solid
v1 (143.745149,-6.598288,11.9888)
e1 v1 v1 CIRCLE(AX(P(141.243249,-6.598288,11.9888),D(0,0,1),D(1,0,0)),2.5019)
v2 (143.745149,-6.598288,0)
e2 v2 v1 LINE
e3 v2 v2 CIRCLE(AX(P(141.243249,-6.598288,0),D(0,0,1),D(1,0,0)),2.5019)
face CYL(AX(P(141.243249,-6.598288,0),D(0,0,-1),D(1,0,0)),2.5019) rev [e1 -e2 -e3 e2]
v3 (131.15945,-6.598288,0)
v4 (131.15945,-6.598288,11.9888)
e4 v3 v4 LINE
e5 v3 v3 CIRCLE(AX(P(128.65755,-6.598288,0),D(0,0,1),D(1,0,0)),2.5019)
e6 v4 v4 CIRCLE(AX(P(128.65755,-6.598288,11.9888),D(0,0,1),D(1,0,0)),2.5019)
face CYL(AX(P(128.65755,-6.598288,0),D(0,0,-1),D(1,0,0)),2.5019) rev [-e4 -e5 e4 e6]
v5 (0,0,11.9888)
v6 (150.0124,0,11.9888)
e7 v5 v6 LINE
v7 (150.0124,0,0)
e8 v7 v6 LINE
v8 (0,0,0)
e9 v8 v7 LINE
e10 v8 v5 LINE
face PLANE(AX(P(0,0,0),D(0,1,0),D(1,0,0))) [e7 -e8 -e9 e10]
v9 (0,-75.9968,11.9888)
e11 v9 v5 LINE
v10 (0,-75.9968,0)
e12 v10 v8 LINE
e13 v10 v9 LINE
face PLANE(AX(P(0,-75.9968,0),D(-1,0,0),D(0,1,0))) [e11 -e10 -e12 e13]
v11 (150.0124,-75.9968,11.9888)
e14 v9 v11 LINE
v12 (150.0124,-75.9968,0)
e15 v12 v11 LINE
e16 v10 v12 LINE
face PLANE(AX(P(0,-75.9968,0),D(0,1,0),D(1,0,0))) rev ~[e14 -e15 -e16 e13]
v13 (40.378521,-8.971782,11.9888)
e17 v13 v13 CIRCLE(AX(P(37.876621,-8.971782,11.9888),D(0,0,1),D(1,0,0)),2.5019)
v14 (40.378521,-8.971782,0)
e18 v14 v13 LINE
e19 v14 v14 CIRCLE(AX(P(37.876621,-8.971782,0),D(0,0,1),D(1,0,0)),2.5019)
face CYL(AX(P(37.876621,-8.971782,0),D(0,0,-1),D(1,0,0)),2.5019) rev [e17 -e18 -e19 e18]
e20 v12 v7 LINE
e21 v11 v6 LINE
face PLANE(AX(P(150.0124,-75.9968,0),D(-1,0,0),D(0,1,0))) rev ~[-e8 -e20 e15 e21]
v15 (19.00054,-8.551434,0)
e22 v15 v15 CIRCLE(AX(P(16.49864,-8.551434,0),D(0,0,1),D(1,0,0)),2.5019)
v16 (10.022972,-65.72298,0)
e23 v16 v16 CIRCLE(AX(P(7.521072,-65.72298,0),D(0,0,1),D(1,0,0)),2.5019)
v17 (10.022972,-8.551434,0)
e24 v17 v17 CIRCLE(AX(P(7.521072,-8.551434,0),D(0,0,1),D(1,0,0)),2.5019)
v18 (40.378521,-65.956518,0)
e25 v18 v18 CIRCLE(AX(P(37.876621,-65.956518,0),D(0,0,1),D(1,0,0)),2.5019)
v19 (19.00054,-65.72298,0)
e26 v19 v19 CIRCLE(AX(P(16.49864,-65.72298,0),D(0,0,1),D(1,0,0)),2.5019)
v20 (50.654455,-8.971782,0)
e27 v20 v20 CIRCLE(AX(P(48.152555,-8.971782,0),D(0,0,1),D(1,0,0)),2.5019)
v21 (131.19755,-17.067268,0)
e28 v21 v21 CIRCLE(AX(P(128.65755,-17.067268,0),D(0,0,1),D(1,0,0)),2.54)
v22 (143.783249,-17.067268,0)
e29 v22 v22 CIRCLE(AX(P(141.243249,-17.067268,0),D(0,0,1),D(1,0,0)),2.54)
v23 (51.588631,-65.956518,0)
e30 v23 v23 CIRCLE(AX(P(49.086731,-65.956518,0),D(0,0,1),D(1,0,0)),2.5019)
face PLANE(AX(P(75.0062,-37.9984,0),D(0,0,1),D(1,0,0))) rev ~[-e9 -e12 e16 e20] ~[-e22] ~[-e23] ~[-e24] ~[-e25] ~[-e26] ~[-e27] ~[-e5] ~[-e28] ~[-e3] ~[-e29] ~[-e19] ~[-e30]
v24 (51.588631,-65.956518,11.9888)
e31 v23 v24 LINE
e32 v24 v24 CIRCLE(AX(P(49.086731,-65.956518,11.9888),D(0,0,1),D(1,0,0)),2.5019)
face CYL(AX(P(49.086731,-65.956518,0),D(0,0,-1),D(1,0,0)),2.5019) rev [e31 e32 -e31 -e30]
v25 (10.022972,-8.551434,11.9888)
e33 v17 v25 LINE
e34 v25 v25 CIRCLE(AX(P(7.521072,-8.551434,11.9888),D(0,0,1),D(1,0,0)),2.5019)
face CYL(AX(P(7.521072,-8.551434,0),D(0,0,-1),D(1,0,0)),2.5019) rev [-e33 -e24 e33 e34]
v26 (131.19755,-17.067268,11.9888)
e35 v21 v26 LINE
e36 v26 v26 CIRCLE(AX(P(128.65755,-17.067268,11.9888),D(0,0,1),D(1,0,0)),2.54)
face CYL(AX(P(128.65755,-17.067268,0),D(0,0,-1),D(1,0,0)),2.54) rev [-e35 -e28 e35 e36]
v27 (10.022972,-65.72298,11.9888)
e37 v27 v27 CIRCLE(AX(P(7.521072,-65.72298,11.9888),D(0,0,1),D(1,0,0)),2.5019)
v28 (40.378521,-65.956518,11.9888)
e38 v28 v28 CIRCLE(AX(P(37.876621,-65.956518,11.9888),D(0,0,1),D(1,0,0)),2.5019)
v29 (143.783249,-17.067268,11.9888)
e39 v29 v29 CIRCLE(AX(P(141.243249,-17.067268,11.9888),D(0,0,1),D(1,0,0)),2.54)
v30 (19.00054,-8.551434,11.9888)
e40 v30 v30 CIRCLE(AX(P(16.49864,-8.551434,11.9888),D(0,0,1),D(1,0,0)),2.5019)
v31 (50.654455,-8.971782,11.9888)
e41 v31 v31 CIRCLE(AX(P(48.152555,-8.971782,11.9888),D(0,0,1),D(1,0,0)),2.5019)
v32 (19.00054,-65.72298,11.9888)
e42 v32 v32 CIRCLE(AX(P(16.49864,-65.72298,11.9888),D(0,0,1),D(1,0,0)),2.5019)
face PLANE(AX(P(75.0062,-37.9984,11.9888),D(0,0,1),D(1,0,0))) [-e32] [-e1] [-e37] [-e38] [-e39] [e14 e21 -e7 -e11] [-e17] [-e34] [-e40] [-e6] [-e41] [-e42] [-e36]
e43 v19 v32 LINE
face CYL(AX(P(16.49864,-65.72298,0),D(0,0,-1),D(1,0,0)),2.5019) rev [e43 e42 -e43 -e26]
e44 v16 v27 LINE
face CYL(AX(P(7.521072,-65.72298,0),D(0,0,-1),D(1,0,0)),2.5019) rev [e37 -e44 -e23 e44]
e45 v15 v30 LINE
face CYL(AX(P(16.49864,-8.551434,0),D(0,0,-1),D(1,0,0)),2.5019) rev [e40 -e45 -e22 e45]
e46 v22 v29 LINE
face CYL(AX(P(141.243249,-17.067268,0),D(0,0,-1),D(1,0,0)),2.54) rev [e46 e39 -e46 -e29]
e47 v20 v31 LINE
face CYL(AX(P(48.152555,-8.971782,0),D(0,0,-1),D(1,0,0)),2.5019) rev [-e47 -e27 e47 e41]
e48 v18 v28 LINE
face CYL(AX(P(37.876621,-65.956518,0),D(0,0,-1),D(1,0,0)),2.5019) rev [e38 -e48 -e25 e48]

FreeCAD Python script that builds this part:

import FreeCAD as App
import Part
import Sketcher

V = App.Vector
Q = App.Units.Quantity

doc = App.newDocument("Part")
params = doc.addObject("Spreadsheet::Sheet", "Params")
for row, (alias, value) in enumerate([
    ("sketch1_diameter", "0.2 in"),
    ("sketch1_diameter2", "0.197 in"),
    ("sketch1_width", "5.906 in"),
    ("sketch1_height", "2.992 in"),
    ("pad1_length", "0.472 in"),
], start=1):
    params.set(f"A{row}", alias)
    params.set(f"B{row}", "=" + value)
    params.setAlias(f"B{row}", alias)

body = doc.addObject("PartDesign::Body", "Body")

sketch1 = body.newObject("Sketcher::SketchObject", "Sketch")
sketch1.AttachmentSupport = (doc.getObject("XY_Plane"), [""])
sketch1.MapMode = "FlatFace"
sketch1.addGeometry([
    Part.LineSegment(V(0, 0, 0), V(0, -75.9968, 0)),
    Part.LineSegment(V(0, -75.9968, 0), V(150.0124, -75.9968, 0)),
    Part.LineSegment(V(150.0124, -75.9968, 0), V(150.0124, 0, 0)),
    Part.LineSegment(V(150.0124, 0, 0), V(0, 0, 0)),
    Part.Circle(V(7.521072, -65.72298, 0), V(0, 0, 1), 2.5019),
    Part.Circle(V(16.49864, -65.72298, 0), V(0, 0, 1), 2.5019),
    Part.Circle(V(37.876621, -65.956518, 0), V(0, 0, 1), 2.5019),
    Part.Circle(V(49.086731, -65.956518, 0), V(0, 0, 1), 2.5019),
    Part.Circle(V(7.521072, -8.551434, 0), V(0, 0, 1), 2.5019),
    Part.Circle(V(16.49864, -8.551434, 0), V(0, 0, 1), 2.5019),
    Part.Circle(V(37.876621, -8.971782, 0), V(0, 0, 1), 2.5019),
    Part.Circle(V(48.152555, -8.971782, 0), V(0, 0, 1), 2.5019),
    Part.Circle(V(128.65755, -17.067268, 0), V(0, 0, 1), 2.54),
    Part.Circle(V(141.243249, -17.067268, 0), V(0, 0, 1), 2.54),
    Part.Circle(V(128.65755, -6.598288, 0), V(0, 0, 1), 2.5019),
    Part.Circle(V(141.243249, -6.598288, 0), V(0, 0, 1), 2.5019),
], False)
sketch1.addConstraint([
    Sketcher.Constraint("Coincident", 0, 2, 1, 1),
    Sketcher.Constraint("Coincident", 1, 2, 2, 1),
    Sketcher.Constraint("Coincident", 2, 2, 3, 1),
    Sketcher.Constraint("Coincident", 3, 2, 0, 1),
    Sketcher.Constraint("Vertical", 0),
    Sketcher.Constraint("Horizontal", 1),
    Sketcher.Constraint("Vertical", 2),
    Sketcher.Constraint("Horizontal", 3),
    Sketcher.Constraint("Coincident", 3, 2, -1, 1),
    Sketcher.Constraint("Equal", 4, 5),
    Sketcher.Constraint("Equal", 5, 6),
    Sketcher.Constraint("Equal", 6, 7),
    Sketcher.Constraint("Equal", 7, 8),
    Sketcher.Constraint("Equal", 8, 9),
    Sketcher.Constraint("Equal", 9, 10),
    Sketcher.Constraint("Equal", 10, 11),
    Sketcher.Constraint("Equal", 12, 13),
    Sketcher.Constraint("Equal", 11, 14),
    Sketcher.Constraint("Equal", 14, 15),
    Sketcher.Constraint("Horizontal", 4, 3, 5, 3),
    Sketcher.Constraint("Horizontal", 6, 3, 7, 3),
    Sketcher.Constraint("Horizontal", 8, 3, 9, 3),
    Sketcher.Constraint("Horizontal", 10, 3, 11, 3),
    Sketcher.Constraint("Horizontal", 12, 3, 13, 3),
    Sketcher.Constraint("Horizontal", 14, 3, 15, 3),
    Sketcher.Constraint("Vertical", 4, 3, 8, 3),
    Sketcher.Constraint("Vertical", 5, 3, 9, 3),
    Sketcher.Constraint("Vertical", 6, 3, 10, 3),
    Sketcher.Constraint("Vertical", 12, 3, 14, 3),
    Sketcher.Constraint("Vertical", 13, 3, 15, 3),
    Sketcher.Constraint("Diameter", 12, Q("0.2 in")),
    Sketcher.Constraint("Diameter", 4, Q("0.197 in")),
    Sketcher.Constraint("DistanceX", 1, 1, 1, 2, Q("5.906 in")),
    Sketcher.Constraint("DistanceY", 0, 2, 0, 1, Q("2.992 in")),
    Sketcher.Constraint("DistanceX", 12, 3, 13, 3, Q("0.4955 in")),
    Sketcher.Constraint("DistanceY", 5, 3, 10, 3, Q("56.751198 mm")),
    Sketcher.Constraint("DistanceY", 4, 3, -1, 1, Q("65.72298 mm")),
    Sketcher.Constraint("DistanceX", -1, 1, 5, 3, Q("16.49864 mm")),
    Sketcher.Constraint("DistanceX", -1, 1, 6, 3, Q("37.876621 mm")),
    Sketcher.Constraint("DistanceY", 6, 3, -1, 1, Q("65.956518 mm")),
    Sketcher.Constraint("DistanceX", -1, 1, 7, 3, Q("49.086731 mm")),
    Sketcher.Constraint("DistanceX", -1, 1, 12, 3, Q("128.65755 mm")),
    Sketcher.Constraint("DistanceX", 4, 3, 5, 3, Q("8.977568 mm")),
    Sketcher.Constraint("DistanceY", 7, 3, 12, 3, Q("48.88925 mm")),
    Sketcher.Constraint("DistanceY", 12, 3, 14, 3, Q("10.46898 mm")),
    Sketcher.Constraint("DistanceY", 8, 3, -1, 1, Q("8.551434 mm")),
    Sketcher.Constraint("DistanceX", -1, 1, 11, 3, Q("48.152555 mm")),
])
sketch1.setExpression("Constraints[30]", "Params.sketch1_diameter")
sketch1.setExpression("Constraints[31]", "Params.sketch1_diameter2")
sketch1.setExpression("Constraints[32]", "Params.sketch1_width")
sketch1.setExpression("Constraints[33]", "Params.sketch1_height")
pad1 = body.newObject("PartDesign::Pad", "Pad")
pad1.Profile = sketch1
pad1.setExpression("Length", "Params.pad1_length")

doc.recompute()
